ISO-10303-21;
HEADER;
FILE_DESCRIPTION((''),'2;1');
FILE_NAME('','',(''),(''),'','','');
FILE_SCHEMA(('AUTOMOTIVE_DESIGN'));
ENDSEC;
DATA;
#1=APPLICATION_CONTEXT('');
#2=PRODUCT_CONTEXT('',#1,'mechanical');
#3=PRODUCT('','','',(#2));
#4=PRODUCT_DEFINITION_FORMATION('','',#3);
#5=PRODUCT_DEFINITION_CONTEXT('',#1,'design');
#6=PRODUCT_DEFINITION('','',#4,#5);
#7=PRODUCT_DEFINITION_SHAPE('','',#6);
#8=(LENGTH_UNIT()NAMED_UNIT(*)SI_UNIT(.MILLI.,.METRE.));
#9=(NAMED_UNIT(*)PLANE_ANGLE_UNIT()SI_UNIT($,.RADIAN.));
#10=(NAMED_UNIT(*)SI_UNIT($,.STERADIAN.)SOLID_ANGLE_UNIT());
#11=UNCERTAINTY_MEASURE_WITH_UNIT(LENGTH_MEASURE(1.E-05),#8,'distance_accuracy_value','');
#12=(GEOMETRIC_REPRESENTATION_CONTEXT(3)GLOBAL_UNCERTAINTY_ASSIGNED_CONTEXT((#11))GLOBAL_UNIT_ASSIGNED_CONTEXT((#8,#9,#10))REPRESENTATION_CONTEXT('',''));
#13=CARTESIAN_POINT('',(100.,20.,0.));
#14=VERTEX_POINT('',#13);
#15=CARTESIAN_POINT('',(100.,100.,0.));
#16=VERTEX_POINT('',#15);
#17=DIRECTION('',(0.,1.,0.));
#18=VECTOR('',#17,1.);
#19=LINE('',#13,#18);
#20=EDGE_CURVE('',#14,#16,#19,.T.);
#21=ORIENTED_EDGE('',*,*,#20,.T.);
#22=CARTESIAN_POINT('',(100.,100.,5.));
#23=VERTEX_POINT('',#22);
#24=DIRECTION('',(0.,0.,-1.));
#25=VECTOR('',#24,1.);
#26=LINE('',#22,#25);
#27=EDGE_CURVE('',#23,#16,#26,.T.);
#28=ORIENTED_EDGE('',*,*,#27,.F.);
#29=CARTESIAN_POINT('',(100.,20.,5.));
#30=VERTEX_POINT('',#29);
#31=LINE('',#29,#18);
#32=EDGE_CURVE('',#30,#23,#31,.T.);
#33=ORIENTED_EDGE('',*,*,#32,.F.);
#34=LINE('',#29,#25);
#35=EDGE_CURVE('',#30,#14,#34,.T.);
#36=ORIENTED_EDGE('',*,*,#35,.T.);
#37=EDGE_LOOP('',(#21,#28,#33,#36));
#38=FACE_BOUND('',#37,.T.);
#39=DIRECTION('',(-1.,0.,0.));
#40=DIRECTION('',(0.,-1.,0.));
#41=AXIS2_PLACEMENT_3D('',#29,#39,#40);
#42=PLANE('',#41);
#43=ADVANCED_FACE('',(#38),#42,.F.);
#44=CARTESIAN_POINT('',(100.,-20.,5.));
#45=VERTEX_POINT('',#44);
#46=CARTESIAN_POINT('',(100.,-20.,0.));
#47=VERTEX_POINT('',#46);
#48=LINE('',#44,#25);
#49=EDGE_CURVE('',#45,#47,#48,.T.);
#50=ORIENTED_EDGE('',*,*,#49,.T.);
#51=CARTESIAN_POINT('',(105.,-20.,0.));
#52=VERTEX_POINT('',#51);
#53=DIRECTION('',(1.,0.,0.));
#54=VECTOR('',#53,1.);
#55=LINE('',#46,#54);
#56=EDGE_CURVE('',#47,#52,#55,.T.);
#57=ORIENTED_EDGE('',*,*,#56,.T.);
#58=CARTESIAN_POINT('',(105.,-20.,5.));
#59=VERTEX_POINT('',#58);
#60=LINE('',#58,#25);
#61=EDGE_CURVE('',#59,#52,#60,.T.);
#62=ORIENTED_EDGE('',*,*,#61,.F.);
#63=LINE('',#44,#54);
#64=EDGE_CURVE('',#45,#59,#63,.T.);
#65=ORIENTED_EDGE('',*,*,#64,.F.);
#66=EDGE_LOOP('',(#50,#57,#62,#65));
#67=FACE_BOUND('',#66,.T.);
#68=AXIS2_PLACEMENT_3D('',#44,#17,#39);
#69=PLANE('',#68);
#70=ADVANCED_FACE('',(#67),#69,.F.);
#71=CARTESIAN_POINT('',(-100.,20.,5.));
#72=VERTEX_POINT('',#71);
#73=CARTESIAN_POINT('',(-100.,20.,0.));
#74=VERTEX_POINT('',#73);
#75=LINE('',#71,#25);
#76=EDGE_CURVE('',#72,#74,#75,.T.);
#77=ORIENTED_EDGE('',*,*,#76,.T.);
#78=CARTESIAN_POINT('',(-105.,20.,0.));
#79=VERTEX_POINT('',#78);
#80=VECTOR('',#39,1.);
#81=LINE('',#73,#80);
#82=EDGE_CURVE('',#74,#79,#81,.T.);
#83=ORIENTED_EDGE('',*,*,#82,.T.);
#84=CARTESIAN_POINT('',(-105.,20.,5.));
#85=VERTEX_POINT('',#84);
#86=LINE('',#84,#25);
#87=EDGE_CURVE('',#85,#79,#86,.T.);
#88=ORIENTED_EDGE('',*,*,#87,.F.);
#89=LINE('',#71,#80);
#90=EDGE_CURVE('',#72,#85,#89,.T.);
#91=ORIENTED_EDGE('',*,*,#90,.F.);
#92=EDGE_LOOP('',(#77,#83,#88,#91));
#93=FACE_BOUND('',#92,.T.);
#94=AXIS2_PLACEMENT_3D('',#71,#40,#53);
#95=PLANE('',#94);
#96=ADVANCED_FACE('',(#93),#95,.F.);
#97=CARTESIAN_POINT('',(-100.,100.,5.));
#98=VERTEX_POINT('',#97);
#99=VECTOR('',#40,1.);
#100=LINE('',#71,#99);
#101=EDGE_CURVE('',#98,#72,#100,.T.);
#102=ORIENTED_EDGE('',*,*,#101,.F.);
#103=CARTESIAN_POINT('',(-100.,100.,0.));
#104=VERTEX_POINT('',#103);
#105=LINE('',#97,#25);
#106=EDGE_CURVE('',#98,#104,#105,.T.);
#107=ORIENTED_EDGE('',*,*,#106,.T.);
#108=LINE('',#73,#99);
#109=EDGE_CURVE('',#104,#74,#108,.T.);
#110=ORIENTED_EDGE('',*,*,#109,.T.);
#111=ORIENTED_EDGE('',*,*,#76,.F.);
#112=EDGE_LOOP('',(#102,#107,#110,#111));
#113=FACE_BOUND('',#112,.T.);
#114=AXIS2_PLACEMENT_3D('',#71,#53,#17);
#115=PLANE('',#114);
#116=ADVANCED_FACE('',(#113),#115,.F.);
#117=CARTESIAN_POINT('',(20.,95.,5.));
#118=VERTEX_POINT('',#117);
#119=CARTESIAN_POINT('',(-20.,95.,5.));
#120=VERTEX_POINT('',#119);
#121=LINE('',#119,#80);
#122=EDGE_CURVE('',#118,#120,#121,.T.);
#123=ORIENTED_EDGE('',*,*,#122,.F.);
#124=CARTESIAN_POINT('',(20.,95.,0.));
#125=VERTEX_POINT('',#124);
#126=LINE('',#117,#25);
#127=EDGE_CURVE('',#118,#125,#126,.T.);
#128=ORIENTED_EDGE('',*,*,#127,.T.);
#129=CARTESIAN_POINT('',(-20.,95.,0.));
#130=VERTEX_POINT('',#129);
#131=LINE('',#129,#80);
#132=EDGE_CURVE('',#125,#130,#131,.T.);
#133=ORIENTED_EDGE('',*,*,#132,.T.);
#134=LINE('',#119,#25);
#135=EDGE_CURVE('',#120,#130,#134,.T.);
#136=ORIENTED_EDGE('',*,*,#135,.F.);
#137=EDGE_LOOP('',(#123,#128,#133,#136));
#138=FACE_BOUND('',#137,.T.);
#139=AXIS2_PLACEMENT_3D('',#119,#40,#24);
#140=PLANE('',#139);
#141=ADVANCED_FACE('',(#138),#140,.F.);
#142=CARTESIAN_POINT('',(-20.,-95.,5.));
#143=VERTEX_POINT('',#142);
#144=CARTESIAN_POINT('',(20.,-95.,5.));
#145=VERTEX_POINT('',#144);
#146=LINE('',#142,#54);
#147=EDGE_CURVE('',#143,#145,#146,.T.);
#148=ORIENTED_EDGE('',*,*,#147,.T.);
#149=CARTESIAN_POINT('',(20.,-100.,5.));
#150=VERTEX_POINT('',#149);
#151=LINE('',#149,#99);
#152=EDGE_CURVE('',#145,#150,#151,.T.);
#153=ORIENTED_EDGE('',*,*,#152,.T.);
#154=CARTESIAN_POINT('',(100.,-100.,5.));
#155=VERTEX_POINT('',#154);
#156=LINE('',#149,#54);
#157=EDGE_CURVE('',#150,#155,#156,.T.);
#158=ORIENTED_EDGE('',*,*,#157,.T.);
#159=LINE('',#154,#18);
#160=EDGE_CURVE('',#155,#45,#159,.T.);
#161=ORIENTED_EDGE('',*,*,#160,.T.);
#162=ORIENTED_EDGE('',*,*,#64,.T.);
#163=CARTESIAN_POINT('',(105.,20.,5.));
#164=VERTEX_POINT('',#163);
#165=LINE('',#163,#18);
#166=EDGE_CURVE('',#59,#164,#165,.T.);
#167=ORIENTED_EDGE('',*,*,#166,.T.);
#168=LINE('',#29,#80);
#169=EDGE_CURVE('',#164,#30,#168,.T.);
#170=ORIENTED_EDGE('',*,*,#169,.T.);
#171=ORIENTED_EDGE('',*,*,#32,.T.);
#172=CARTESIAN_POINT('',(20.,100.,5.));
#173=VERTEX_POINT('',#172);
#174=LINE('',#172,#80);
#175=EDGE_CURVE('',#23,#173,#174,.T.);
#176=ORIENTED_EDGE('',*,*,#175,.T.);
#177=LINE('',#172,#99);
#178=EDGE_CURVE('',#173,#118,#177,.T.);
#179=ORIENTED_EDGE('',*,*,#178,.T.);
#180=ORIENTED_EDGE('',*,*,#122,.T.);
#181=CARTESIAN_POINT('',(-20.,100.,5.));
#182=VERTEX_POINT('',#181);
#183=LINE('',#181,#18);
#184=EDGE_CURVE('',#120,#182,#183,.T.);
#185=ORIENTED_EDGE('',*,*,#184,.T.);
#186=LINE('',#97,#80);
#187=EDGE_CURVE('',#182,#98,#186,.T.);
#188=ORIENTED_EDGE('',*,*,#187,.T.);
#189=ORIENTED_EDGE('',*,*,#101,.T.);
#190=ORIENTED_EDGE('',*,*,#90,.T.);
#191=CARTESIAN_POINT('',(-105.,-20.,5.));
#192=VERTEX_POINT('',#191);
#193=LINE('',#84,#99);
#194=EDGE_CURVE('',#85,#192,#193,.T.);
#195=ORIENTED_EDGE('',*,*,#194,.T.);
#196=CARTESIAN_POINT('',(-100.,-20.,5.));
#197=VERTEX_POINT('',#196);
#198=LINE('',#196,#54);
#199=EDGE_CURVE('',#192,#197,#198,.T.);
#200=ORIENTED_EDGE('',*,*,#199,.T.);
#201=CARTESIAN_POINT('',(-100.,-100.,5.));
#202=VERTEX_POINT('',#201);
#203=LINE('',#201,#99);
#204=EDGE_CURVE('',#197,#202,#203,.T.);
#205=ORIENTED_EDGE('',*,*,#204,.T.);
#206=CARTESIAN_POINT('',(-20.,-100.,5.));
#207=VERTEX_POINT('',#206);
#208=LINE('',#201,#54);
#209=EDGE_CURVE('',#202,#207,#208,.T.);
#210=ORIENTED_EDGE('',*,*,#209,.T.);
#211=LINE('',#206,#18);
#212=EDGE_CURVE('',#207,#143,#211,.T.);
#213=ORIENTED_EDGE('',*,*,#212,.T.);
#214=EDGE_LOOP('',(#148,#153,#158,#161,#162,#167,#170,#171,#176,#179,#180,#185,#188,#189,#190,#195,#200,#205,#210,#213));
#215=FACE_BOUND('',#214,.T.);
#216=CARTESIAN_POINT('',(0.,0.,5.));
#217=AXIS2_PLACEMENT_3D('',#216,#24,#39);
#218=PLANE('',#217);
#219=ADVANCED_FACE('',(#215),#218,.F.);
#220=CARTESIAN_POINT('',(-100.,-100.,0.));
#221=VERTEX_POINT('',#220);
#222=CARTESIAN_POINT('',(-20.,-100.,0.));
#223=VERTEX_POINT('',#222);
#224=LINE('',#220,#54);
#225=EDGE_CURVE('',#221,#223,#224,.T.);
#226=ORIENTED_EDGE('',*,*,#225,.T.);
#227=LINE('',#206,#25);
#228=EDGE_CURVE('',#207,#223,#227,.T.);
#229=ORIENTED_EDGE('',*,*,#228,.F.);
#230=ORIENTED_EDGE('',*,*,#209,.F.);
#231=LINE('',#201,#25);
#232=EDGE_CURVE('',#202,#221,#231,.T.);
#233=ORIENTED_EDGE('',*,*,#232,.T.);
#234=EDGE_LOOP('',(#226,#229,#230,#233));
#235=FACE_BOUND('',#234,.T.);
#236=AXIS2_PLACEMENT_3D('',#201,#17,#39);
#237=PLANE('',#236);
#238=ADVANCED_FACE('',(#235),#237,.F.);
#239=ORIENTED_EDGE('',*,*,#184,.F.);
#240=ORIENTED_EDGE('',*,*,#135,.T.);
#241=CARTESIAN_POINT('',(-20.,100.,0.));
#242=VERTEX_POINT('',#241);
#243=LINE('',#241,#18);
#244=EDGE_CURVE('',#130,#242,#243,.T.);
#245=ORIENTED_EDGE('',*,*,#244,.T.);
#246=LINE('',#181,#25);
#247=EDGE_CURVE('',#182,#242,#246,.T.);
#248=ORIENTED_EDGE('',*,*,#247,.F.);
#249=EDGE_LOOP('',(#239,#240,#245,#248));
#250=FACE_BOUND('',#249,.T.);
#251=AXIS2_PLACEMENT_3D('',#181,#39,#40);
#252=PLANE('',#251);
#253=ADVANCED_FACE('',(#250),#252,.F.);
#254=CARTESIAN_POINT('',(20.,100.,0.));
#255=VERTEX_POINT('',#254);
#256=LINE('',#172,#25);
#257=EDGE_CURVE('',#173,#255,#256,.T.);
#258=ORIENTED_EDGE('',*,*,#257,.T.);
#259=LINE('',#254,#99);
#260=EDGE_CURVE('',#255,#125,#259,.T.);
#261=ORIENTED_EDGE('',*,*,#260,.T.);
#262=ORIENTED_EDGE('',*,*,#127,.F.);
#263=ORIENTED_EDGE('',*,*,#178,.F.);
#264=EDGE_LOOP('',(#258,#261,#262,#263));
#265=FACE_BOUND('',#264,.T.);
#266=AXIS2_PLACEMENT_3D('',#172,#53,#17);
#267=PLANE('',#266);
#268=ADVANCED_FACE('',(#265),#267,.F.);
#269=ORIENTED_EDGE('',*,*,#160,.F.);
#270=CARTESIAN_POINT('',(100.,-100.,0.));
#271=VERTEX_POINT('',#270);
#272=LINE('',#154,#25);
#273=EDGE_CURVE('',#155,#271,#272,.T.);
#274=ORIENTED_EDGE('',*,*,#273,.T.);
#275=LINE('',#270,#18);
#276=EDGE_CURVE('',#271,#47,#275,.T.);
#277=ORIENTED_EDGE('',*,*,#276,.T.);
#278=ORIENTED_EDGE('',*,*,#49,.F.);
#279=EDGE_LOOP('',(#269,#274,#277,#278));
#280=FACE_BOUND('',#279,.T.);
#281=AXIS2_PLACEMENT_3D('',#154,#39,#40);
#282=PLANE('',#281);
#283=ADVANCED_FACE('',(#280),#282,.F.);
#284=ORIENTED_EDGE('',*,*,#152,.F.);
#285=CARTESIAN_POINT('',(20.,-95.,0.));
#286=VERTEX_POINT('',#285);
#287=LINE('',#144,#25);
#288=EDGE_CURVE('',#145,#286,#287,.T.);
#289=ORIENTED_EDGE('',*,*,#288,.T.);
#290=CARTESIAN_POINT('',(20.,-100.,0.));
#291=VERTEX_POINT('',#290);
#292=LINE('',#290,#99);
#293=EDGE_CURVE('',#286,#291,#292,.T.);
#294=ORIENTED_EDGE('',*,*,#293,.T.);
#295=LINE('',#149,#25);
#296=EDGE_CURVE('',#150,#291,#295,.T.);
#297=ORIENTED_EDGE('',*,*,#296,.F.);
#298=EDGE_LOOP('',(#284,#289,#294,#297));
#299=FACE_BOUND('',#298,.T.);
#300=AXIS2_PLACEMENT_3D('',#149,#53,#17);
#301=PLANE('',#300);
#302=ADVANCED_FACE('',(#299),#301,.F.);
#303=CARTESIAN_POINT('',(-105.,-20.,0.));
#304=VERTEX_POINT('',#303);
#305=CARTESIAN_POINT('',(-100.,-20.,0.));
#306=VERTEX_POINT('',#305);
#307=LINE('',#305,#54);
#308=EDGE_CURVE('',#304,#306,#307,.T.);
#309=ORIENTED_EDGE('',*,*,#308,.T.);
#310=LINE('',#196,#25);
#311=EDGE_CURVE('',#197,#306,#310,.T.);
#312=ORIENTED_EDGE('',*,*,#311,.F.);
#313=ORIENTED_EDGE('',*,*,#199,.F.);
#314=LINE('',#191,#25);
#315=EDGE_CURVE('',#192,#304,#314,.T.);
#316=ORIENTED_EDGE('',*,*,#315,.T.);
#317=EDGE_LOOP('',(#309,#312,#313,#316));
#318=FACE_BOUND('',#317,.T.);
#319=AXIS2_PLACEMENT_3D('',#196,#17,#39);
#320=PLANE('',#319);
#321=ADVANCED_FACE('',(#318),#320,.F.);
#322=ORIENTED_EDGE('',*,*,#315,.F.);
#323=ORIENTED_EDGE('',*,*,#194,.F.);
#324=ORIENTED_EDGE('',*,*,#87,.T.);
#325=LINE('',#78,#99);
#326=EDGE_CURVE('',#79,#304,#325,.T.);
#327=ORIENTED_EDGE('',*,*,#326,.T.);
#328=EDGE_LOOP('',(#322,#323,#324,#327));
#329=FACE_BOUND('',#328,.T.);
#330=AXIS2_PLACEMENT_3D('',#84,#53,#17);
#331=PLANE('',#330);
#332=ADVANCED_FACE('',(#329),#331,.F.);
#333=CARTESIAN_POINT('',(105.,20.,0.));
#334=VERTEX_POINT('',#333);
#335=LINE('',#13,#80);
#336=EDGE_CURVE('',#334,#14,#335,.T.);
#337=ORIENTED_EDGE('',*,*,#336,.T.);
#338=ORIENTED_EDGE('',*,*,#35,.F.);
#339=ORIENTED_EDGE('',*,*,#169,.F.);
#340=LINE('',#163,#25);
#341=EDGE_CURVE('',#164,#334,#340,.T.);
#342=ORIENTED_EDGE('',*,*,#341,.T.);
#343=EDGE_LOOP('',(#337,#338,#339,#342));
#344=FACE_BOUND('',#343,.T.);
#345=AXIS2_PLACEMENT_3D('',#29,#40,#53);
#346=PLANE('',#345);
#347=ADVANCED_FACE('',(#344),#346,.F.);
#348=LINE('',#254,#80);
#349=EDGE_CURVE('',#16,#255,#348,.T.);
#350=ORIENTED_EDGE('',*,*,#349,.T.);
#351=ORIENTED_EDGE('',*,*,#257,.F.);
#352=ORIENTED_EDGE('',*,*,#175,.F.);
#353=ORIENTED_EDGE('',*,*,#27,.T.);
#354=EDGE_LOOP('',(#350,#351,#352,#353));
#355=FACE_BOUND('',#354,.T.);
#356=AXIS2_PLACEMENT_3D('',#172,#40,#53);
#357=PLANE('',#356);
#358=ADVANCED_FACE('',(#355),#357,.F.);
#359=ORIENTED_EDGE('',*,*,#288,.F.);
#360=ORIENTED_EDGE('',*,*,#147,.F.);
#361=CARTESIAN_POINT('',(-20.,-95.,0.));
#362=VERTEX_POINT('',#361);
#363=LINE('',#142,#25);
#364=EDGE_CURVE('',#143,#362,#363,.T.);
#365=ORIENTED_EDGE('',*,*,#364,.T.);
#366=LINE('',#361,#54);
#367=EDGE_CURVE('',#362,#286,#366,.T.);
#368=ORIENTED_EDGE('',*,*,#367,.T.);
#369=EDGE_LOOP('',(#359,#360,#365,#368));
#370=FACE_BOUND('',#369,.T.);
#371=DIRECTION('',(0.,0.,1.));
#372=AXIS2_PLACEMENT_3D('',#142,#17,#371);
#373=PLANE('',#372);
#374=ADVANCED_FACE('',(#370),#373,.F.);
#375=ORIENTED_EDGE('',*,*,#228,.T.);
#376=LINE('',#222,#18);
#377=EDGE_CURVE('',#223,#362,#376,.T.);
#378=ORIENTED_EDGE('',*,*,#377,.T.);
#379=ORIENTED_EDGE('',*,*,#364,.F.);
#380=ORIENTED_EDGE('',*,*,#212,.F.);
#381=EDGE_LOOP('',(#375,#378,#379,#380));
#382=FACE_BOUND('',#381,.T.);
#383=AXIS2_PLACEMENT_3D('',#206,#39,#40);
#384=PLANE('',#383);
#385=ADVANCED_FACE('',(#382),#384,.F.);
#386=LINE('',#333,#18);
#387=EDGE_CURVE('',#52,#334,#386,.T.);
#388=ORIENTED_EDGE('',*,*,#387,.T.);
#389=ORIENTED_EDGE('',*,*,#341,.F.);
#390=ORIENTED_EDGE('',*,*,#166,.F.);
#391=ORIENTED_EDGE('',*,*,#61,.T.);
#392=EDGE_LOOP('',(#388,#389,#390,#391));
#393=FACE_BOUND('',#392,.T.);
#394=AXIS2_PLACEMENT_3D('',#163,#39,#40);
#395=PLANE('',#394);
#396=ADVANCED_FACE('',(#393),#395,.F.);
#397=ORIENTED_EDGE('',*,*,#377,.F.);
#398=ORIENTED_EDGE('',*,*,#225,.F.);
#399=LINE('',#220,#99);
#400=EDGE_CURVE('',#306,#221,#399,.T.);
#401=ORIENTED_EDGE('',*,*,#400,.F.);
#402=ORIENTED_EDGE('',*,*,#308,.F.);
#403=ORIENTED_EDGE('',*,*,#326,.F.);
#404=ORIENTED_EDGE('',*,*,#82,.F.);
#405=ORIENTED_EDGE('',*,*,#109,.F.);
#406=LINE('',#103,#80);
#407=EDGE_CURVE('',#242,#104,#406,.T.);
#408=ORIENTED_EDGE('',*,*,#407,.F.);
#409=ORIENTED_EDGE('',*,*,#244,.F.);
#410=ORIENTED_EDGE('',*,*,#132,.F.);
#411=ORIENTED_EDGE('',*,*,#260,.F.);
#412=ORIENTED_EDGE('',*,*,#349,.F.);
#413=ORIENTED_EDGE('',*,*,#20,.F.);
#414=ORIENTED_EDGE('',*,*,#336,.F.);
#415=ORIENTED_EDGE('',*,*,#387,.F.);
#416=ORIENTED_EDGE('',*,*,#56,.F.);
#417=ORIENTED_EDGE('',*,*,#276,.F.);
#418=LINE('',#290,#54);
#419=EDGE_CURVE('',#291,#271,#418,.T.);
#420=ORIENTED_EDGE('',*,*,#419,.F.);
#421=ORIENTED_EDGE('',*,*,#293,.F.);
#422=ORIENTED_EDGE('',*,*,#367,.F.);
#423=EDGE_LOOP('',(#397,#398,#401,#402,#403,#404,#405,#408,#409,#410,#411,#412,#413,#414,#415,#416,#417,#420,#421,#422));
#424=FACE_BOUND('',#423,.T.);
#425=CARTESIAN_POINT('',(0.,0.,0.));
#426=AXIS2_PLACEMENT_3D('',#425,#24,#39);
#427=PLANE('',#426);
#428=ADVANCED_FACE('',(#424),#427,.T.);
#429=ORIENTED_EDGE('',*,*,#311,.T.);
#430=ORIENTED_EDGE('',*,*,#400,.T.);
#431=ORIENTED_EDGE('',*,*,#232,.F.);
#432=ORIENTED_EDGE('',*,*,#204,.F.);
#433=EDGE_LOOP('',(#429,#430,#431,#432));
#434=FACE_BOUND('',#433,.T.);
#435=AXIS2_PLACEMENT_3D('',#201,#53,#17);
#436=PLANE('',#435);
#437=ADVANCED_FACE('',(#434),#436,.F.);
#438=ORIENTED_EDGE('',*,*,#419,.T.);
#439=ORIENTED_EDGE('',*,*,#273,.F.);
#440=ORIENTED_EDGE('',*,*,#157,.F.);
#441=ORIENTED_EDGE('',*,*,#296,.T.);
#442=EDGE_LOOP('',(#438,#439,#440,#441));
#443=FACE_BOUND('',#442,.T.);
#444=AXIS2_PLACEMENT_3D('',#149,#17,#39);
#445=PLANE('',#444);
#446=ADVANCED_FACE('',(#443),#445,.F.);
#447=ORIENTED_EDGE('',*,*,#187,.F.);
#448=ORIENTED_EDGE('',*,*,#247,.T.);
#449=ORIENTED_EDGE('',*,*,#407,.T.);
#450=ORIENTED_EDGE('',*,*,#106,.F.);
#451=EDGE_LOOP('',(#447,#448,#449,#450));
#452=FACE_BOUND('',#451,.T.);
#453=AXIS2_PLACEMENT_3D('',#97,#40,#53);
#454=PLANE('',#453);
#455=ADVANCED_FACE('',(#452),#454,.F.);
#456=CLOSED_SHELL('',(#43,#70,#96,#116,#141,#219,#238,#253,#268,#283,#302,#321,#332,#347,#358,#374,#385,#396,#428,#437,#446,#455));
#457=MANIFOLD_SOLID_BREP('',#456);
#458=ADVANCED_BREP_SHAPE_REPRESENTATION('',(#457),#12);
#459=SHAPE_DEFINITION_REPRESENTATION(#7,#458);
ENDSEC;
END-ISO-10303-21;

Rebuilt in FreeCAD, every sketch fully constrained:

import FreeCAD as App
import Part
import Sketcher
Q = App.Units.Quantity


def add_polygon(sketch, points):
    """Adds a closed chain of lines whose ends are joined by coincident constraints."""
    first, n = sketch.GeometryCount, len(points)
    for a, b in zip(points, points[1:] + points[:1]):
        sketch.addGeometry(Part.LineSegment(App.Vector(*a, 0), App.Vector(*b, 0)), False)
    for i in range(n):
        sketch.addConstraint(Sketcher.Constraint("Coincident", first + i, 2, first + (i + 1) % n, 1))

doc = App.newDocument("Part")
body = doc.addObject("PartDesign::Body", "Body")

# Sketch on XY plane
sketch1 = body.newObject("Sketcher::SketchObject", "Sketch")
sketch1.AttachmentSupport = (doc.getObject("XY_Plane"), [""])
sketch1.MapMode = "FlatFace"
add_polygon(sketch1, [(-100, -20), (-100, -100), (-20, -100), (-20, -95), (20, -95), (20, -100), (100, -100), (100, -20), (105, -20), (105, 20), (100, 20), (100, 100), (20, 100), (20, 95), (-20, 95), (-20, 100), (-100, 100), (-100, 20), (-105, 20), (-105, -20)])  # lines 0-19
sketch1.addConstraint(Sketcher.Constraint("Vertical", 0))
sketch1.addConstraint(Sketcher.Constraint("Horizontal", 1))
sketch1.addConstraint(Sketcher.Constraint("Vertical", 2))
sketch1.addConstraint(Sketcher.Constraint("Horizontal", 3))
sketch1.addConstraint(Sketcher.Constraint("Vertical", 4))
sketch1.addConstraint(Sketcher.Constraint("Horizontal", 5))
sketch1.addConstraint(Sketcher.Constraint("Vertical", 6))
sketch1.addConstraint(Sketcher.Constraint("Horizontal", 7))
sketch1.addConstraint(Sketcher.Constraint("Vertical", 8))
sketch1.addConstraint(Sketcher.Constraint("Horizontal", 9))
sketch1.addConstraint(Sketcher.Constraint("Vertical", 10))
sketch1.addConstraint(Sketcher.Constraint("Horizontal", 11))
sketch1.addConstraint(Sketcher.Constraint("Vertical", 12))
sketch1.addConstraint(Sketcher.Constraint("Horizontal", 13))
sketch1.addConstraint(Sketcher.Constraint("Vertical", 14))
sketch1.addConstraint(Sketcher.Constraint("Horizontal", 15))
sketch1.addConstraint(Sketcher.Constraint("Vertical", 16))
sketch1.addConstraint(Sketcher.Constraint("Horizontal", 17))
sketch1.addConstraint(Sketcher.Constraint("Vertical", 18))
sketch1.addConstraint(Sketcher.Constraint("Horizontal", 19))
sketch1.addConstraint(Sketcher.Constraint("Symmetric", 0, 2, 10, 2, -1, 1))
sketch1.addConstraint(Sketcher.Constraint("Symmetric", 2, 2, 12, 2, -1, 1))
sketch1.addConstraint(Sketcher.Constraint("Symmetric", 4, 2, 14, 2, -1, 1))
sketch1.addConstraint(Sketcher.Constraint("Symmetric", 6, 2, 16, 2, -1, 1))
sketch1.addConstraint(Sketcher.Constraint("Symmetric", 8, 2, 18, 2, -1, 1))
sketch1.addConstraint(Sketcher.Constraint("Symmetric", 1, 2, 4, 2, -2))
sketch1.addConstraint(Sketcher.Constraint("Symmetric", 9, 2, 16, 2, -2))
sketch1.addConstraint(Sketcher.Constraint("Equal", 15, 0))
sketch1.addConstraint(Sketcher.Constraint("Equal", 19, 2))
sketch1.addConstraint(Sketcher.Constraint("Equal", 13, 8))
sketch1.addConstraint(Sketcher.Constraint("DistanceX", 1, 1, 1, 2, Q("80 mm")))
sketch1.addConstraint(Sketcher.Constraint("DistanceX", 3, 1, 3, 2, Q("40 mm")))
sketch1.addConstraint(Sketcher.Constraint("DistanceX", 7, 1, 7, 2, Q("5 mm")))
pad1 = body.newObject("PartDesign::Pad", "Pad")
pad1.Profile = sketch1
pad1.Length = 5

doc.recompute()
